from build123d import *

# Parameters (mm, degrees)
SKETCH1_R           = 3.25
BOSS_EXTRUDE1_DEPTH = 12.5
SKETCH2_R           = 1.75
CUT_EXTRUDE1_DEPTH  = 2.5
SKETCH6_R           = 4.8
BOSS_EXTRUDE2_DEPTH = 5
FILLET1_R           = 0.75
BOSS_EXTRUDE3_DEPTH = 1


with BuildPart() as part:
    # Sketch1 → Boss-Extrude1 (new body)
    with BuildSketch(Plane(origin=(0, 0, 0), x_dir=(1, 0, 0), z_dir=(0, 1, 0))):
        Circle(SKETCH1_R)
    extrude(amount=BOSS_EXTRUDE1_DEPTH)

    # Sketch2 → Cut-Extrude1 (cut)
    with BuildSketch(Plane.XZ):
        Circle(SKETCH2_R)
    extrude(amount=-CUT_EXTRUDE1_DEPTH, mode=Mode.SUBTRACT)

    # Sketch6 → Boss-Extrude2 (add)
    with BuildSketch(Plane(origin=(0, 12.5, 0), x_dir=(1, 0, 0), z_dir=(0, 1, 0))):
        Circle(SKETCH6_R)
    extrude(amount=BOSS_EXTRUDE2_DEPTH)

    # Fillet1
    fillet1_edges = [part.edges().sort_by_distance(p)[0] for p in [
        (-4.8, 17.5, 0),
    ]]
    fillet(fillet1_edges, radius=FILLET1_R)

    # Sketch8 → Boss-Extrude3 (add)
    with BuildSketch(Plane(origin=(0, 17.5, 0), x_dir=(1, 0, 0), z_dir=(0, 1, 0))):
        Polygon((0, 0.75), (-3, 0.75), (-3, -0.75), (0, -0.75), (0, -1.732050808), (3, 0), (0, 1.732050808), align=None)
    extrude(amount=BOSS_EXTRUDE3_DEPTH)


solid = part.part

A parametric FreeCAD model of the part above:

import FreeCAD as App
import Part
import Sketcher

V = App.Vector
Q = App.Units.Quantity


def edges_at(feature, points):
    """Names of the edges that pass closest to the given points."""
    edges = feature.Shape.Edges
    near = lambda p: min(range(len(edges)), key=lambda i: edges[i].distToShape(Part.Vertex(*p))[0])
    return sorted({f"Edge{near(p) + 1}" for p in points})


def add_polygon(sketch, points):
    """Adds a closed chain of lines whose ends are joined by coincident constraints."""
    first, n = sketch.GeometryCount, len(points)
    for a, b in zip(points, points[1:] + points[:1]):
        sketch.addGeometry(Part.LineSegment(App.Vector(*a, 0), App.Vector(*b, 0)), False)
    for i in range(n):
        sketch.addConstraint(Sketcher.Constraint("Coincident", first + i, 2, first + (i + 1) % n, 1))

doc = App.newDocument("Part")
params = doc.addObject("Spreadsheet::Sheet", "Params")
for row, (alias, value) in enumerate([
    ("sketch1_diameter", "6.5 mm"),
    ("pad1_length", "12.5 mm"),
    ("sketch2_diameter", "3.5 mm"),
    ("pocket1_length", "2.5 mm"),
    ("sketch3_diameter", "9.6 mm"),
    ("pad2_length", "5 mm"),
    ("fillet_radius", "0.75 mm"),
    ("sketch4_width", "3 mm"),
    ("sketch4_height", "1.5 mm"),
    ("pad3_length", "1 mm"),
], start=1):
    params.set(f"A{row}", alias)
    params.set(f"B{row}", "=" + value)
    params.setAlias(f"B{row}", alias)

body = doc.addObject("PartDesign::Body", "Body")

# Sketch on XZ plane
sketch1 = doc.addObject("Sketcher::SketchObject", "Sketch")
body.addObject(sketch1)
sketch1.AttachmentSupport = (doc.XZ_Plane, [""])
sketch1.MapMode = "FlatFace"
sketch1.addGeometry(Part.Circle(V(0, 0, 0), V(0, 0, 1), 3.2), False)
sketch1.addConstraint(Sketcher.Constraint("Coincident", 0, 3, -1, 1))
sketch1.addConstraint(Sketcher.Constraint("Diameter", 0, 6.5))
sketch1.setExpression("Constraints[1]", "Params.sketch1_diameter")
pad1 = doc.addObject("PartDesign::Pad", "Pad")
body.addObject(pad1)
pad1.Profile = sketch1
pad1.setExpression("Length", "Params.pad1_length")
pad1.Reversed = True

# Sketch on XZ plane
sketch2 = doc.addObject("Sketcher::SketchObject", "Sketch001")
body.addObject(sketch2)
sketch2.AttachmentSupport = (doc.XZ_Plane, [""])
sketch2.MapMode = "FlatFace"
sketch2.addGeometry(Part.Circle(V(0, 0, 0), V(0, 0, 1), 1.8), False)
sketch2.addConstraint(Sketcher.Constraint("Coincident", 0, 3, -1, 1))
sketch2.addConstraint(Sketcher.Constraint("Diameter", 0, 3.5))
sketch2.setExpression("Constraints[1]", "Params.sketch2_diameter")
pocket1 = doc.addObject("PartDesign::Pocket", "Pocket")
body.addObject(pocket1)
pocket1.Profile = sketch2
pocket1.setExpression("Length", "Params.pocket1_length")

# Sketch on XZ plane
sketch3 = doc.addObject("Sketcher::SketchObject", "Sketch002")
body.addObject(sketch3)
sketch3.AttachmentSupport = (doc.XZ_Plane, [""])
sketch3.MapMode = "FlatFace"
sketch3.AttachmentOffset = App.Placement(V(0, 0, -12.5), App.Rotation())
sketch3.addGeometry(Part.Circle(V(0, 0, 0), V(0, 0, 1), 4.8), False)
sketch3.addConstraint(Sketcher.Constraint("Coincident", 0, 3, -1, 1))
sketch3.addConstraint(Sketcher.Constraint("Diameter", 0, 9.6))
sketch3.setExpression("Constraints[1]", "Params.sketch3_diameter")
pad2 = doc.addObject("PartDesign::Pad", "Pad001")
body.addObject(pad2)
pad2.Profile = sketch3
pad2.setExpression("Length", "Params.pad2_length")
pad2.Reversed = True
doc.recompute()

fillet = doc.addObject("PartDesign::Fillet", "Fillet")
body.addObject(fillet)
fillet.Base = (pad2, edges_at(pad2, [(-4.8, 17.5, 0)]))
fillet.setExpression("Radius", "Params.fillet_radius")

# Sketch on XZ plane
sketch4 = doc.addObject("Sketcher::SketchObject", "Sketch003")
body.addObject(sketch4)
sketch4.AttachmentSupport = (doc.XZ_Plane, [""])
sketch4.MapMode = "FlatFace"
sketch4.AttachmentOffset = App.Placement(V(0, 0, -17.5), App.Rotation())
add_polygon(sketch4, [(0, -0.8), (-3, -0.8), (-3, 0.8), (0, 0.8), (0, 1.7), (3, 0), (0, -1.7)])  # lines 0-6
sketch4.addConstraint(Sketcher.Constraint("Horizontal", 0))
sketch4.addConstraint(Sketcher.Constraint("Vertical", 1))
sketch4.addConstraint(Sketcher.Constraint("Horizontal", 2))
sketch4.addConstraint(Sketcher.Constraint("Vertical", 3))
sketch4.addConstraint(Sketcher.Constraint("Vertical", 6))
sketch4.addConstraint(Sketcher.Constraint("Symmetric", 3, 2, 5, 2, -1, 1))
sketch4.addConstraint(Sketcher.Constraint("Symmetric", 2, 2, 6, 2, -1))
sketch4.addConstraint(Sketcher.Constraint("PointOnObject", 4, 2, -1))
sketch4.addConstraint(Sketcher.Constraint("DistanceX", 0, 2, 0, 1, 3.0))
sketch4.addConstraint(Sketcher.Constraint("Angle", 4, Q("-30 deg")))
sketch4.addConstraint(Sketcher.Constraint("DistanceY", 1, 1, 1, 2, 1.5))
sketch4.addConstraint(Sketcher.Constraint("DistanceX", -1, 1, 4, 2, 3.0))
sketch4.setExpression("Constraints[15]", "Params.sketch4_width")
sketch4.setExpression("Constraints[17]", "Params.sketch4_height")
pad3 = doc.addObject("PartDesign::Pad", "Pad002")
body.addObject(pad3)
pad3.Profile = sketch4
pad3.setExpression("Length", "Params.pad3_length")
pad3.Reversed = True

doc.recompute()
